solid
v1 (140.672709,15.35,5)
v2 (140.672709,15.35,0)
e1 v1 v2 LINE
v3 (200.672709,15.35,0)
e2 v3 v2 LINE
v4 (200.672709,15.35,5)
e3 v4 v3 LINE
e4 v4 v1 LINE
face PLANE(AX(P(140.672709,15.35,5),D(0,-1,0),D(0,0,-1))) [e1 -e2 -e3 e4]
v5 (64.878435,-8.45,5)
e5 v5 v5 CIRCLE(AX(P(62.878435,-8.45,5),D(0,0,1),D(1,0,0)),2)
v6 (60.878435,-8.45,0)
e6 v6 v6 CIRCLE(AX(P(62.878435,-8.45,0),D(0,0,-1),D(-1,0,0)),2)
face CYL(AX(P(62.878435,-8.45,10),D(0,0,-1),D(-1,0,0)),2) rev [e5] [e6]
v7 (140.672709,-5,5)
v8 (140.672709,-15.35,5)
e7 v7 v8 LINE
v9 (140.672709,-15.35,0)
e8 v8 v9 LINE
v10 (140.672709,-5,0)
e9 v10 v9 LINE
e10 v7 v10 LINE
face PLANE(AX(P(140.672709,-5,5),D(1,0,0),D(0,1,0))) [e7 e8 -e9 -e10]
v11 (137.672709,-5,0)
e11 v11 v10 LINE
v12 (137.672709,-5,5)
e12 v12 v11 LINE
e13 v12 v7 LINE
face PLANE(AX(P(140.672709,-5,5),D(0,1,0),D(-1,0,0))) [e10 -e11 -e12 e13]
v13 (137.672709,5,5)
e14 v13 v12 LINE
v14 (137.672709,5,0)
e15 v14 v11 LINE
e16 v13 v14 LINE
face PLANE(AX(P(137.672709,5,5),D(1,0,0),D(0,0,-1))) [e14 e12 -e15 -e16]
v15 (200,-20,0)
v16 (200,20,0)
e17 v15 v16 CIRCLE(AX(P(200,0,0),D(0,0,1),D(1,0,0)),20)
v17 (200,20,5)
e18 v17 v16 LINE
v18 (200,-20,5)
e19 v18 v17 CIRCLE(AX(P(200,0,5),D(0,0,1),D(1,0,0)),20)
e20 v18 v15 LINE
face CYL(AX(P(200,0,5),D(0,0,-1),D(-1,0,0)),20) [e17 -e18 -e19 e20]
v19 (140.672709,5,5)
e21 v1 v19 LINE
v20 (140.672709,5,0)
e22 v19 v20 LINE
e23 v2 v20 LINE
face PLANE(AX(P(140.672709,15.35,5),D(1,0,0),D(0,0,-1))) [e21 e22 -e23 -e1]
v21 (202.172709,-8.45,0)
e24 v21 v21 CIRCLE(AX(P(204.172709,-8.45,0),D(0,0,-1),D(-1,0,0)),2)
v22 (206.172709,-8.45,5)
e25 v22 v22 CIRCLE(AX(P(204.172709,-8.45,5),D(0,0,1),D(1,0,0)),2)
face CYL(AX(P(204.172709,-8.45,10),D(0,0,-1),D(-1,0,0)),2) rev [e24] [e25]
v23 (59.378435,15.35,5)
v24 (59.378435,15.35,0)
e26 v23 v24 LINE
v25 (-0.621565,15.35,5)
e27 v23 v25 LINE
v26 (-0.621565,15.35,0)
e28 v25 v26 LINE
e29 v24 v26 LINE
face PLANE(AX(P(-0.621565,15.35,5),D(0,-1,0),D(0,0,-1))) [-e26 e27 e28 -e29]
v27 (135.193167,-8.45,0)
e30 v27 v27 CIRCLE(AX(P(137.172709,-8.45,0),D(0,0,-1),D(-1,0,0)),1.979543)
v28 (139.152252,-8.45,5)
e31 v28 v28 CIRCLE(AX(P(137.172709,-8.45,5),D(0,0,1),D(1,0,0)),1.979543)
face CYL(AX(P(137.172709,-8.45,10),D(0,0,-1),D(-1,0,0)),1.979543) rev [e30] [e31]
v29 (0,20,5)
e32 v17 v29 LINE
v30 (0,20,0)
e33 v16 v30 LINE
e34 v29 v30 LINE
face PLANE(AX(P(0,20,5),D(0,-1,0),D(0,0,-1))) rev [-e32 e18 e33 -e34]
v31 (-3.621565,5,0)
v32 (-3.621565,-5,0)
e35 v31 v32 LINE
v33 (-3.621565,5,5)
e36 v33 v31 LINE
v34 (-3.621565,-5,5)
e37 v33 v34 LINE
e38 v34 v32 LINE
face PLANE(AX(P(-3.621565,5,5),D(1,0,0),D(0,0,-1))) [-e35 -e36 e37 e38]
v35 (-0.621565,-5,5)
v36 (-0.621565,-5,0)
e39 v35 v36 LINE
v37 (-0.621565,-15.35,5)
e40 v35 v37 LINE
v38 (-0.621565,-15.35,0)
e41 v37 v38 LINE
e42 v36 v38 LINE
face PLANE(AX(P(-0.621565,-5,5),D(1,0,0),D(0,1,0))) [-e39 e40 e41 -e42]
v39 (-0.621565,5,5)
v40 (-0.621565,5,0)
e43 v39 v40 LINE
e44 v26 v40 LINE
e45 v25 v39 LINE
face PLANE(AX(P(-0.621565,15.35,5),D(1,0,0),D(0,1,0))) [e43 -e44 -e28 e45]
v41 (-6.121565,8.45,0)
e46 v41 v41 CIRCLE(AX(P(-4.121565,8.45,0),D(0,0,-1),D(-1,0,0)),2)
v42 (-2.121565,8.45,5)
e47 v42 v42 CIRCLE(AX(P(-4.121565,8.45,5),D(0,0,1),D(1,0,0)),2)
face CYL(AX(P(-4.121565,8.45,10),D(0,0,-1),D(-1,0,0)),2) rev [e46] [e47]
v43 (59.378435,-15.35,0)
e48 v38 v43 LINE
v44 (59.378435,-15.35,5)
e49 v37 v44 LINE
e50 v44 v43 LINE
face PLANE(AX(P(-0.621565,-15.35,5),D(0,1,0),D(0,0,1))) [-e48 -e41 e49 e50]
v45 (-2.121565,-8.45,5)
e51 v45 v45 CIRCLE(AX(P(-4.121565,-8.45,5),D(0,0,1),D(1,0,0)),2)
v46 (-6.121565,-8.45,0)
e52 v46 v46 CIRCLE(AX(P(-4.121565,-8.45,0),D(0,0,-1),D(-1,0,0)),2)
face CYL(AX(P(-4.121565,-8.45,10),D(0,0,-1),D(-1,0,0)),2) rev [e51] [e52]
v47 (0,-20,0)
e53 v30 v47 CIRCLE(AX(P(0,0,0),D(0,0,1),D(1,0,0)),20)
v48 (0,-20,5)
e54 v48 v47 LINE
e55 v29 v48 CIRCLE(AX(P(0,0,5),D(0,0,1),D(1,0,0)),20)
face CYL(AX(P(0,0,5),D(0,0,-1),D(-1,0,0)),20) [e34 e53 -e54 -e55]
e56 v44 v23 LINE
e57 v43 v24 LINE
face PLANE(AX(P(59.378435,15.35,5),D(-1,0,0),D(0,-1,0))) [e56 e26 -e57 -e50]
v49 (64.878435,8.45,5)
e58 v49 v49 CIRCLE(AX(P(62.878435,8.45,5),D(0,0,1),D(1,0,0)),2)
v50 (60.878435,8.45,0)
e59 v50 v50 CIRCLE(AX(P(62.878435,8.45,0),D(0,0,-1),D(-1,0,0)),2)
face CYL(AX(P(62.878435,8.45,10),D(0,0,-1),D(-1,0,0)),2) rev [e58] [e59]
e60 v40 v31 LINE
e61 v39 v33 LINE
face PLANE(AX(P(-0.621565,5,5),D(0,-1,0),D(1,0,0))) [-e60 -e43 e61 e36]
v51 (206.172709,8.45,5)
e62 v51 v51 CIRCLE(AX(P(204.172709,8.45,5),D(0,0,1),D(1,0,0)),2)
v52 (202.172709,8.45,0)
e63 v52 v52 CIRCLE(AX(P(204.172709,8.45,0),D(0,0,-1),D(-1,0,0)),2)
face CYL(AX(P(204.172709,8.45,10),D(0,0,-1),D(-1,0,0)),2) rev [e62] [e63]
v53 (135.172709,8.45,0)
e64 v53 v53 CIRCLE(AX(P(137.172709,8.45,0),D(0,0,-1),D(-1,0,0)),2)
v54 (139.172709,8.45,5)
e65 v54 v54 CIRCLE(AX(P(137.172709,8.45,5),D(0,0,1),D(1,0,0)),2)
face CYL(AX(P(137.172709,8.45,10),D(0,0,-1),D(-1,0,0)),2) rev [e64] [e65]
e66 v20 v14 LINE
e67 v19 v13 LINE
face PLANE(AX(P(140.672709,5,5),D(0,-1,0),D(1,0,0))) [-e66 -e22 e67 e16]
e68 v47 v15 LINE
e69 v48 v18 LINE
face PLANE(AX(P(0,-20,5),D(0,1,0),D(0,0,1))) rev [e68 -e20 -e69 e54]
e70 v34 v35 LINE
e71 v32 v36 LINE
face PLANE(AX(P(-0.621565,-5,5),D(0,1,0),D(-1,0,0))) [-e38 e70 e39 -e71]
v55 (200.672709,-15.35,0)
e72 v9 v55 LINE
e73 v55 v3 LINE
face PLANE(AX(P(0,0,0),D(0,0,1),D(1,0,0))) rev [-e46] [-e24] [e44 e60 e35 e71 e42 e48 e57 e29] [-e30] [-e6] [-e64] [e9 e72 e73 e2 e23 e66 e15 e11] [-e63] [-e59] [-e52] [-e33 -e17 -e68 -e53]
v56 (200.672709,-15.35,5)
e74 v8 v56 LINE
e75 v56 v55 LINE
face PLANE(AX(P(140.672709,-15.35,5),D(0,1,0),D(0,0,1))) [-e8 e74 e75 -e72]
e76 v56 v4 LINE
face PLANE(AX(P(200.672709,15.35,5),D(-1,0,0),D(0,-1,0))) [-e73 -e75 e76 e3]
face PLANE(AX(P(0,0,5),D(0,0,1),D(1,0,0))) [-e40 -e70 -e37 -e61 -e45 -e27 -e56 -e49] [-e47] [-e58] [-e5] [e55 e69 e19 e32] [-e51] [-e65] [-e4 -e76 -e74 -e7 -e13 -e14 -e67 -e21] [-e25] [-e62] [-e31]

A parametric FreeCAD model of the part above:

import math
import FreeCAD as App
import Part
import Sketcher

doc = App.newDocument("Part")
body = doc.addObject("PartDesign::Body", "Body")

# Sketch on XY plane
sketch1 = body.newObject("Sketcher::SketchObject", "Sketch")
sketch1.AttachmentSupport = (doc.getObject("XY_Plane"), [""])
sketch1.MapMode = "FlatFace"
sketch1.addGeometry([
    Part.LineSegment(App.Vector(200, 20, 0), App.Vector(0, 20, 0)),  # 0
    Part.ArcOfCircle(Part.Circle(App.Vector(0, 0, 0), App.Vector(0, 0, 1), 20), math.radians(90), math.radians(270)),  # 1
    Part.LineSegment(App.Vector(0, -20, 0), App.Vector(200, -20, 0)),  # 2
    Part.ArcOfCircle(Part.Circle(App.Vector(200, 0, 0), App.Vector(0, 0, 1), 20), math.radians(-90), math.radians(90)),  # 3
    Part.LineSegment(App.Vector(140.7, -5, 0), App.Vector(137.7, -5, 0)),  # 4
    Part.LineSegment(App.Vector(137.7, -5, 0), App.Vector(137.7, 5, 0)),  # 5
    Part.LineSegment(App.Vector(137.7, 5, 0), App.Vector(140.7, 5, 0)),  # 6
    Part.LineSegment(App.Vector(140.7, 5, 0), App.Vector(140.7, 15.3, 0)),  # 7
    Part.LineSegment(App.Vector(140.7, 15.3, 0), App.Vector(200.7, 15.3, 0)),  # 8
    Part.LineSegment(App.Vector(200.7, 15.3, 0), App.Vector(200.7, -15.3, 0)),  # 9
    Part.LineSegment(App.Vector(200.7, -15.3, 0), App.Vector(140.7, -15.3, 0)),  # 10
    Part.LineSegment(App.Vector(140.7, -15.3, 0), App.Vector(140.7, -5, 0)),  # 11
    Part.LineSegment(App.Vector(-0.6, -5, 0), App.Vector(-3.6, -5, 0)),  # 12
    Part.LineSegment(App.Vector(-3.6, -5, 0), App.Vector(-3.6, 5, 0)),  # 13
    Part.LineSegment(App.Vector(-3.6, 5, 0), App.Vector(-0.6, 5, 0)),  # 14
    Part.LineSegment(App.Vector(-0.6, 5, 0), App.Vector(-0.6, 15.3, 0)),  # 15
    Part.LineSegment(App.Vector(-0.6, 15.3, 0), App.Vector(59.4, 15.3, 0)),  # 16
    Part.LineSegment(App.Vector(59.4, 15.3, 0), App.Vector(59.4, -15.3, 0)),  # 17
    Part.LineSegment(App.Vector(59.4, -15.3, 0), App.Vector(-0.6, -15.3, 0)),  # 18
    Part.LineSegment(App.Vector(-0.6, -15.3, 0), App.Vector(-0.6, -5, 0)),  # 19
], False)
sketch1.addConstraint([
    Sketcher.Constraint("Tangent", 0, 2, 1, 1),
    Sketcher.Constraint("Tangent", 1, 2, 2, 1),
    Sketcher.Constraint("Tangent", 2, 2, 3, 1),
    Sketcher.Constraint("Tangent", 3, 2, 0, 1),
    Sketcher.Constraint("Coincident", 4, 2, 5, 1),
    Sketcher.Constraint("Coincident", 5, 2, 6, 1),
    Sketcher.Constraint("Coincident", 6, 2, 7, 1),
    Sketcher.Constraint("Coincident", 7, 2, 8, 1),
    Sketcher.Constraint("Coincident", 8, 2, 9, 1),
    Sketcher.Constraint("Coincident", 9, 2, 10, 1),
    Sketcher.Constraint("Coincident", 10, 2, 11, 1),
    Sketcher.Constraint("Coincident", 11, 2, 4, 1),
    Sketcher.Constraint("Coincident", 12, 2, 13, 1),
    Sketcher.Constraint("Coincident", 13, 2, 14, 1),
    Sketcher.Constraint("Coincident", 14, 2, 15, 1),
    Sketcher.Constraint("Coincident", 15, 2, 16, 1),
    Sketcher.Constraint("Coincident", 16, 2, 17, 1),
    Sketcher.Constraint("Coincident", 17, 2, 18, 1),
    Sketcher.Constraint("Coincident", 18, 2, 19, 1),
    Sketcher.Constraint("Coincident", 19, 2, 12, 1),
    Sketcher.Constraint("Horizontal", 0),
    Sketcher.Constraint("Horizontal", 2),
    Sketcher.Constraint("Horizontal", 4),
    Sketcher.Constraint("Vertical", 5),
    Sketcher.Constraint("Horizontal", 6),
    Sketcher.Constraint("Vertical", 7),
    Sketcher.Constraint("Horizontal", 8),
    Sketcher.Constraint("Vertical", 9),
    Sketcher.Constraint("Horizontal", 10),
    Sketcher.Constraint("Vertical", 11),
    Sketcher.Constraint("Horizontal", 12),
    Sketcher.Constraint("Vertical", 13),
    Sketcher.Constraint("Horizontal", 14),
    Sketcher.Constraint("Vertical", 15),
    Sketcher.Constraint("Horizontal", 16),
    Sketcher.Constraint("Vertical", 17),
    Sketcher.Constraint("Horizontal", 18),
    Sketcher.Constraint("Vertical", 19),
    Sketcher.Constraint("Coincident", 1, 3, -1, 1),
    Sketcher.Constraint("Symmetric", 7, 2, 10, 2, -1),
    Sketcher.Constraint("Symmetric", 15, 2, 18, 2, -1),
    Sketcher.Constraint("Horizontal", 11, 2, 12, 2),
    Sketcher.Constraint("Horizontal", 6, 2, 13, 2),
    Sketcher.Constraint("Horizontal", 8, 2, 15, 2),
    Sketcher.Constraint("Equal", 6, 12),
    Sketcher.Constraint("Equal", 10, 16),
    Sketcher.Constraint("Equal", 7, 11),
    Sketcher.Constraint("Radius", 1, 20.0),
    Sketcher.Constraint("DistanceX", 0, 2, 0, 1, 200.0),
    Sketcher.Constraint("DistanceX", 4, 2, 4, 1, 3.0),
    Sketcher.Constraint("DistanceX", 8, 1, 8, 2, 60.0),
    Sketcher.Constraint("DistanceY", 5, 1, 5, 2, 10.0),
    Sketcher.Constraint("DistanceY", 9, 2, 9, 1, 30.7),
    Sketcher.Constraint("DistanceX", -1, 1, 4, 2, 137.672709),
    Sketcher.Constraint("DistanceX", 12, 2, -1, 1, 3.621565),
])
pad1 = body.newObject("PartDesign::Pad", "Pad")
pad1.Profile = sketch1
pad1.Length = 5

# Sketch on XY plane
sketch2 = body.newObject("Sketcher::SketchObject", "Sketch001")
sketch2.AttachmentSupport = (doc.getObject("XY_Plane"), [""])
sketch2.MapMode = "FlatFace"
sketch2.addGeometry([
    Part.Circle(App.Vector(137.2, 8.4, 0), App.Vector(0, 0, 1), 2),
    Part.Circle(App.Vector(137.2, -8.4, 0), App.Vector(0, 0, 1), 2),
    Part.Circle(App.Vector(204.2, 8.4, 0), App.Vector(0, 0, 1), 2),
    Part.Circle(App.Vector(204.2, -8.4, 0), App.Vector(0, 0, 1), 2),
], False)
sketch2.addConstraint([
    Sketcher.Constraint("Equal", 0, 2),
    Sketcher.Constraint("Equal", 2, 3),
    Sketcher.Constraint("Symmetric", 0, 3, 1, 3, -1),
    Sketcher.Constraint("Symmetric", 2, 3, 3, 3, -1),
    Sketcher.Constraint("Horizontal", 0, 3, 2, 3),
    Sketcher.Constraint("Diameter", 0, 4.0),
    Sketcher.Constraint("DistanceX", 0, 3, 2, 3, 67.0),
    Sketcher.Constraint("DistanceY", 1, 3, 0, 3, 16.9),
    Sketcher.Constraint("Diameter", 1, 3.959085),
    Sketcher.Constraint("DistanceX", -1, 1, 0, 3, 137.172709),
])
pocket1 = body.newObject("PartDesign::Pocket", "Pocket")
pocket1.Profile = sketch2
pocket1.Length = 10
pocket1.Reversed = True

# Sketch on XY plane
sketch3 = body.newObject("Sketcher::SketchObject", "Sketch002")
sketch3.AttachmentSupport = (doc.getObject("XY_Plane"), [""])
sketch3.MapMode = "FlatFace"
sketch3.addGeometry([
    Part.Circle(App.Vector(-4.1, 8.4, 0), App.Vector(0, 0, 1), 2),
    Part.Circle(App.Vector(-4.1, -8.4, 0), App.Vector(0, 0, 1), 2),
    Part.Circle(App.Vector(62.9, -8.4, 0), App.Vector(0, 0, 1), 2),
    Part.Circle(App.Vector(62.9, 8.4, 0), App.Vector(0, 0, 1), 2),
], False)
sketch3.addConstraint([
    Sketcher.Constraint("Equal", 0, 1),
    Sketcher.Constraint("Equal", 1, 2),
    Sketcher.Constraint("Equal", 2, 3),
    Sketcher.Constraint("Symmetric", 0, 3, 1, 3, -1),
    Sketcher.Constraint("Symmetric", 2, 3, 3, 3, -1),
    Sketcher.Constraint("Horizontal", 1, 3, 2, 3),
    Sketcher.Constraint("Diameter", 0, 4.0),
    Sketcher.Constraint("DistanceX", 1, 3, 2, 3, 67.0),
    Sketcher.Constraint("DistanceY", 1, 3, 0, 3, 16.9),
    Sketcher.Constraint("DistanceX", 0, 3, -1, 1, 4.121565),
])
pocket2 = body.newObject("PartDesign::Pocket", "Pocket001")
pocket2.Profile = sketch3
pocket2.Length = 10
pocket2.Reversed = True

doc.recompute()
